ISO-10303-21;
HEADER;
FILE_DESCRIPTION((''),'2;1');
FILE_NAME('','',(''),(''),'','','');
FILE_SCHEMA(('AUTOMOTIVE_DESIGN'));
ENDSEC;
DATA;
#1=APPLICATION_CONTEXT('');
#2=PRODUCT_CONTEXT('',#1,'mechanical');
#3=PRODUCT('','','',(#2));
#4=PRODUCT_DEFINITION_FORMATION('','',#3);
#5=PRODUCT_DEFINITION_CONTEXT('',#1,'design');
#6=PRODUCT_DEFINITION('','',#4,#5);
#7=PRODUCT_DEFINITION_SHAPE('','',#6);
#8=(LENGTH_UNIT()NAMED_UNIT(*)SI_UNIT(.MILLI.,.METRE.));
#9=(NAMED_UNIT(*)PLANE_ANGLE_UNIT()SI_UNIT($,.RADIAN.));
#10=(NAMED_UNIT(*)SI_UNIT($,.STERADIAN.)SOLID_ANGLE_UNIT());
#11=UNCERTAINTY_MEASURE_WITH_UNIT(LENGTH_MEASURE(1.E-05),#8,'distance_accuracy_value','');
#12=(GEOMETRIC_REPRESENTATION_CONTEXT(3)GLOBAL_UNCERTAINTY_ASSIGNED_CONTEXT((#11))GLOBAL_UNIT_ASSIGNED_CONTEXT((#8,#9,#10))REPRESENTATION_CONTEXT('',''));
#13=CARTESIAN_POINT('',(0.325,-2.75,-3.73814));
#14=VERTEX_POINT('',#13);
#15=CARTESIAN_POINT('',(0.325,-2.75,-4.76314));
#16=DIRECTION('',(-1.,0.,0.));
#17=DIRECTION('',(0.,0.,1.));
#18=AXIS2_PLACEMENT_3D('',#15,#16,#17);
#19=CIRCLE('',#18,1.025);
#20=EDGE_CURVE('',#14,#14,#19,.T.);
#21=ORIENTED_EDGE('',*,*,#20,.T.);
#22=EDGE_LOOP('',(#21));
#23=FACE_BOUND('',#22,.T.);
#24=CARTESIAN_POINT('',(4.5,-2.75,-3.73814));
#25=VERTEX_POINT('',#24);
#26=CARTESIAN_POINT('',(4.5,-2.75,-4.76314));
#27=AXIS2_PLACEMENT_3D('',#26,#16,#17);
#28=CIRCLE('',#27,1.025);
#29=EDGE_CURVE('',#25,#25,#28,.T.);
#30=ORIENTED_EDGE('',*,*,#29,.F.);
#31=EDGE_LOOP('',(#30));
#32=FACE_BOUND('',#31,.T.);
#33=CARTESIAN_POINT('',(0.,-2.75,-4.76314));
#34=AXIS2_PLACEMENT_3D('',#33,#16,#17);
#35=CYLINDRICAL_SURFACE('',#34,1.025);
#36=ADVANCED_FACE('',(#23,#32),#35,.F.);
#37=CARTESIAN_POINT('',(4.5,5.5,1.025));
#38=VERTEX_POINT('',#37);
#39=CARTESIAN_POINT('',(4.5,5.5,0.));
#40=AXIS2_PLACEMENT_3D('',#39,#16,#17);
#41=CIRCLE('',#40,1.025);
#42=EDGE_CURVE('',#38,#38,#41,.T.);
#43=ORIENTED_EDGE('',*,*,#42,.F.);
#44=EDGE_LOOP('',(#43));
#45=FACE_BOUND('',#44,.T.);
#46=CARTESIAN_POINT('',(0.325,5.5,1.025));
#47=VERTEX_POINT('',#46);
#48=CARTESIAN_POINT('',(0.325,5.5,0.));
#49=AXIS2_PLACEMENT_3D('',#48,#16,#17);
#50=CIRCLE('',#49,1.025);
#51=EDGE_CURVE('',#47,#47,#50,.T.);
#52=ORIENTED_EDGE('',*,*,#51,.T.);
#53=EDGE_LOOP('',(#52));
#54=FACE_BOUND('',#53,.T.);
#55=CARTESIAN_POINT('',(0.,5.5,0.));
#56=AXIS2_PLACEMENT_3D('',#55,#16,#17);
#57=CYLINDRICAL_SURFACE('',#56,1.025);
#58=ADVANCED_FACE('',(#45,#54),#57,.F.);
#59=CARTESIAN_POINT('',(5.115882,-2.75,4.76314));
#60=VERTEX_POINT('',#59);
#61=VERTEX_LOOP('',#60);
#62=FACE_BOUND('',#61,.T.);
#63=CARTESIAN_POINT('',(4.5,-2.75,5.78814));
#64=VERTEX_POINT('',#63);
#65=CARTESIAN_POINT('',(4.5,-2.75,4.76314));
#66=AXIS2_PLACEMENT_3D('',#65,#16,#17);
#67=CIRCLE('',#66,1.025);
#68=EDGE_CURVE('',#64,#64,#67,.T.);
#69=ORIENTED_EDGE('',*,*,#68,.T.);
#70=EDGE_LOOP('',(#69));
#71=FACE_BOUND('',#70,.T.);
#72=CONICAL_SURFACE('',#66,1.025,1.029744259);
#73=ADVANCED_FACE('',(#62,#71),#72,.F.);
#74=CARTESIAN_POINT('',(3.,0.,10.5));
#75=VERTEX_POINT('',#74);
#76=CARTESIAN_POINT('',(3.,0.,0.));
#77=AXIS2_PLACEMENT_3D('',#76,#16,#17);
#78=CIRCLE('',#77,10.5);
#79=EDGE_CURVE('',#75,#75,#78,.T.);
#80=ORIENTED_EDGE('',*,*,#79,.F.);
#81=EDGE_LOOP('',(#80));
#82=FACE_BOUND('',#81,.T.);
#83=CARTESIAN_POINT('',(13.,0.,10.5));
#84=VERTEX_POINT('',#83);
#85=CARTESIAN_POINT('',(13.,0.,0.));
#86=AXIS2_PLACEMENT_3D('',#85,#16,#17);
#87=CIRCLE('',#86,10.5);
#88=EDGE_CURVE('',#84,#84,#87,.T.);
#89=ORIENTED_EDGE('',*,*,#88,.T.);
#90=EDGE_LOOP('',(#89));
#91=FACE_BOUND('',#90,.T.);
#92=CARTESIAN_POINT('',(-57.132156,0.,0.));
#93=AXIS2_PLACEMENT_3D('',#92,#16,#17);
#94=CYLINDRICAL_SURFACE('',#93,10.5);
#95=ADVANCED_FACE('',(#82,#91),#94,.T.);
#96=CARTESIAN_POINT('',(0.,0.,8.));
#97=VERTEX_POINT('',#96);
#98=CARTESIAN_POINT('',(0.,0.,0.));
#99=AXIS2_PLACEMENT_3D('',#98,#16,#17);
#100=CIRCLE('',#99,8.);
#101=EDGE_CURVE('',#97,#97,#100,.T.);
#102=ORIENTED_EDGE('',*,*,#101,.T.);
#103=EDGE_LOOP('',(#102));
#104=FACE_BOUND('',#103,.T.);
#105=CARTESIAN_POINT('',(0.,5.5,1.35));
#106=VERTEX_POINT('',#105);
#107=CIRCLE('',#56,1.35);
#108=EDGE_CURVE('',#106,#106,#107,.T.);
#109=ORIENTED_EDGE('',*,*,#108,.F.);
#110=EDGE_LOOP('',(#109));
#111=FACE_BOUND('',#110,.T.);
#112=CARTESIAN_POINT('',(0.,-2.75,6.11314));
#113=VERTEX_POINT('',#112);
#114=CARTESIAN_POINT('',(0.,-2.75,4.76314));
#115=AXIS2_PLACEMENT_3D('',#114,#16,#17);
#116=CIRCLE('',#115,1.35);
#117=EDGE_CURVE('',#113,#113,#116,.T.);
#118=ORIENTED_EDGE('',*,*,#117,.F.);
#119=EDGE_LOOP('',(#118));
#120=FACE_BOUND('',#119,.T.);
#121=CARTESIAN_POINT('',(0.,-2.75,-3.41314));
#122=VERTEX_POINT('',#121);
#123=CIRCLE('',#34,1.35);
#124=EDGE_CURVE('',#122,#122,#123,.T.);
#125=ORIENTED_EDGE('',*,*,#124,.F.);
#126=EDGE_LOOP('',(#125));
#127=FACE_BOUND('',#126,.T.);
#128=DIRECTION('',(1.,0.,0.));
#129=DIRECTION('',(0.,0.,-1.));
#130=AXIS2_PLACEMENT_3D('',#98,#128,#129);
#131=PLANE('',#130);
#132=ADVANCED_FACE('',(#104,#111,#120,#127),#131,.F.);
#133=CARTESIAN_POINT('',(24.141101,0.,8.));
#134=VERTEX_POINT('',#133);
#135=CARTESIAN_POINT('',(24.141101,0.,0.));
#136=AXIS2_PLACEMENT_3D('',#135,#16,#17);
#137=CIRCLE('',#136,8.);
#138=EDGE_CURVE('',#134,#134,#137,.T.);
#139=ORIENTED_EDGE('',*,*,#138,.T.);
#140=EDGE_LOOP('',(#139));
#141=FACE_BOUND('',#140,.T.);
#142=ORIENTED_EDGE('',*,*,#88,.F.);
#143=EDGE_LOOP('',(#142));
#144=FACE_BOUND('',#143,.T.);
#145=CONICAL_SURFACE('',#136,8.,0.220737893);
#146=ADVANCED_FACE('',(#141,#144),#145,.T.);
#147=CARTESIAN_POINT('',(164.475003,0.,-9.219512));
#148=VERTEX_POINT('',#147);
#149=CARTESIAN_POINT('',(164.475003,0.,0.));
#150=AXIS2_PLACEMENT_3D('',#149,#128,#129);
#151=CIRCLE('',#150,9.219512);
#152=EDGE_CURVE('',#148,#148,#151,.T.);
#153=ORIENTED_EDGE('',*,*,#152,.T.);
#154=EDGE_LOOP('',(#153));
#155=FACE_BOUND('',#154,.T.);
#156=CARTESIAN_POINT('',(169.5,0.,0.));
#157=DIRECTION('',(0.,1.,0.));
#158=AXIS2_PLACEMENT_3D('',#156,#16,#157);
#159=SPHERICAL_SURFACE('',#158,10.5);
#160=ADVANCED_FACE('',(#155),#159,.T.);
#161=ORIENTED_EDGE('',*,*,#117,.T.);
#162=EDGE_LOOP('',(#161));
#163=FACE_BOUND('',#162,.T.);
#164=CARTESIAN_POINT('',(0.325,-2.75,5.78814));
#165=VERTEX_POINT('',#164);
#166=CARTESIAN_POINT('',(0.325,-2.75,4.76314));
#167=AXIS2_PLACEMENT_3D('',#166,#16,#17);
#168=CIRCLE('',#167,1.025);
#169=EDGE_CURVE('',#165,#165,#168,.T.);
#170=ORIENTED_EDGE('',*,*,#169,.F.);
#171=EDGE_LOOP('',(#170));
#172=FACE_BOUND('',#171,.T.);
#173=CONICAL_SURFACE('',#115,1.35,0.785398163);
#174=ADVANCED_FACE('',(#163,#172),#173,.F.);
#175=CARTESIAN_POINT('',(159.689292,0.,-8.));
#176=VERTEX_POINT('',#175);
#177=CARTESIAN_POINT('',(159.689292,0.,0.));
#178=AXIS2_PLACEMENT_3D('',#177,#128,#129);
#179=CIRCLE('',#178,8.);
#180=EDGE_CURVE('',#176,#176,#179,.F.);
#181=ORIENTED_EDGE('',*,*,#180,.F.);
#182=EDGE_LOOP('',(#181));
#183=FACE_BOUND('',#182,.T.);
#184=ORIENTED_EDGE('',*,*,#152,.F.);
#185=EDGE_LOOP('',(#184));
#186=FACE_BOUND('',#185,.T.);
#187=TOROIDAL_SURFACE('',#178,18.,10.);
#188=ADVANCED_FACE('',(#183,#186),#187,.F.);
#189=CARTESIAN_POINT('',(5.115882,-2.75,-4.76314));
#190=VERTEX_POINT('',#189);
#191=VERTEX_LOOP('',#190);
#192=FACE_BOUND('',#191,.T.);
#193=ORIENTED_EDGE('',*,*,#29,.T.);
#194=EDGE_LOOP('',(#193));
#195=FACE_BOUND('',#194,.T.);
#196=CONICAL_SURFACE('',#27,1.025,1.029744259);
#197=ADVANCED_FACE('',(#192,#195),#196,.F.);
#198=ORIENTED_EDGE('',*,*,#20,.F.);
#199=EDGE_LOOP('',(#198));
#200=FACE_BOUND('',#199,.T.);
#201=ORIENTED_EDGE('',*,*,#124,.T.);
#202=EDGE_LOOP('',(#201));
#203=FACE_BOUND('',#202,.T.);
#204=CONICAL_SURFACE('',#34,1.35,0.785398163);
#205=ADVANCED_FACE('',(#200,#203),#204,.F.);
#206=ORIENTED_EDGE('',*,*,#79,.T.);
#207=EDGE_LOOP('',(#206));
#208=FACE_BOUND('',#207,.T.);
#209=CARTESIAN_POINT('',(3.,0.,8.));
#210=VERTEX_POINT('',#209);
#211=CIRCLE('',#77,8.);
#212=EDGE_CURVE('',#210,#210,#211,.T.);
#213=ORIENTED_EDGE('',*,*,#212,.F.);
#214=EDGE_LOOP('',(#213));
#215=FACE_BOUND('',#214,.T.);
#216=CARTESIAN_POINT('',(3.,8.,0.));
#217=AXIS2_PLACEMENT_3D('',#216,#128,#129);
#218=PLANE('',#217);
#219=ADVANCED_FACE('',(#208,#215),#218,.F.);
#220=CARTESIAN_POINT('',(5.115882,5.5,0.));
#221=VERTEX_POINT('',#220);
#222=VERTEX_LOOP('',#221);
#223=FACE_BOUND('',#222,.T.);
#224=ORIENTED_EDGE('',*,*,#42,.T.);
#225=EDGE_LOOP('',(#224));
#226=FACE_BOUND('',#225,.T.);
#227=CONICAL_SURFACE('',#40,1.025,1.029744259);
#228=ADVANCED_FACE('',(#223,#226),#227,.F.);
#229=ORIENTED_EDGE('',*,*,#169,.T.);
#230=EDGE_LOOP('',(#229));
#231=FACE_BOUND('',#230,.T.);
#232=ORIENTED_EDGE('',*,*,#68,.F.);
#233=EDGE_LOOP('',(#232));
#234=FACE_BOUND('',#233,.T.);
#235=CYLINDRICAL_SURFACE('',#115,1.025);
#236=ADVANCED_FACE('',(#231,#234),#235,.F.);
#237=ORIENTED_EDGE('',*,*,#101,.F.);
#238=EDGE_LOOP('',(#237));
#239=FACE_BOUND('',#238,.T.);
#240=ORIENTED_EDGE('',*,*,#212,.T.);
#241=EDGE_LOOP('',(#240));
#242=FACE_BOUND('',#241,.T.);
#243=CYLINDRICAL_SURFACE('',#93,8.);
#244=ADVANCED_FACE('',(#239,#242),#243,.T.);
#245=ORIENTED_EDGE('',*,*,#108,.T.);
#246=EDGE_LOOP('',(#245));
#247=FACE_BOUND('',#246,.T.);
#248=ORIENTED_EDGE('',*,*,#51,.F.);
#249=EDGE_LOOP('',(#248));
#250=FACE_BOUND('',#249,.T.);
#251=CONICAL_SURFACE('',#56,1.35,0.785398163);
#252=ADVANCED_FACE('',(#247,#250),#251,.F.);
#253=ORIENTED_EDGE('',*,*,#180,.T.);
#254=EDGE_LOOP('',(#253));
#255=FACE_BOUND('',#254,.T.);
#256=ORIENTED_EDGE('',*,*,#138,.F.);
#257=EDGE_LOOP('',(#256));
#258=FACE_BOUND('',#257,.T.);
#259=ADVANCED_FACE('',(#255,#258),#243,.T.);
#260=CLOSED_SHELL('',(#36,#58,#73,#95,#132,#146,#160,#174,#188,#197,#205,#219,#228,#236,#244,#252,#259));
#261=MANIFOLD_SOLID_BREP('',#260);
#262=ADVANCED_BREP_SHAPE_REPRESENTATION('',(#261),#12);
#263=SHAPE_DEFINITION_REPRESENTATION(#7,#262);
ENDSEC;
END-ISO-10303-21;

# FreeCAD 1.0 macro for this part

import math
import FreeCAD as App
import Part
import Sketcher
from FreeCAD import Vector
Q = App.Units.Quantity


def edges_at(feature, points):
    """Names of the edges that pass closest to the given points."""
    edges = feature.Shape.Edges
    near = lambda p: min(range(len(edges)), key=lambda i: edges[i].distToShape(Part.Vertex(*p))[0])
    return sorted({f"Edge{near(p) + 1}" for p in points})

doc = App.newDocument("Part")
body = doc.addObject("PartDesign::Body", "Body")

# Sketch on XY plane
sketch1 = body.newObject("Sketcher::SketchObject", "Sketch")
sketch1.AttachmentSupport = (doc.getObject("XY_Plane"), [""])
sketch1.MapMode = "FlatFace"
sketch1.addGeometry([
    Part.LineSegment(Vector(0, 8, 0), Vector(0, 0, 0)),  # 0
    Part.LineSegment(Vector(0, 0, 0), Vector(180, 0, 0)),  # 1
    Part.ArcOfCircle(Part.Circle(Vector(169.5, 0, 0), Vector(0, 0, 1), 10.5), math.radians(0), math.radians(130.367594)),  # 2
    Part.LineSegment(Vector(162.699265, 8, 0), Vector(24.141101, 8, 0)),  # 3
    Part.LineSegment(Vector(24.141101, 8, 0), Vector(13, 10.5, 0)),  # 4
    Part.LineSegment(Vector(13, 10.5, 0), Vector(3, 10.5, 0)),  # 5
    Part.LineSegment(Vector(3, 10.5, 0), Vector(3, 8, 0)),  # 6
    Part.LineSegment(Vector(3, 8, 0), Vector(0, 8, 0)),  # 7
], False)
sketch1.addConstraint([
    Sketcher.Constraint("Coincident", 0, 2, 1, 1),
    Sketcher.Constraint("Coincident", 1, 2, 2, 1),
    Sketcher.Constraint("Coincident", 2, 2, 3, 1),
    Sketcher.Constraint("Coincident", 3, 2, 4, 1),
    Sketcher.Constraint("Coincident", 4, 2, 5, 1),
    Sketcher.Constraint("Coincident", 5, 2, 6, 1),
    Sketcher.Constraint("Coincident", 6, 2, 7, 1),
    Sketcher.Constraint("Coincident", 7, 2, 0, 1),
    Sketcher.Constraint("Vertical", 0),
    Sketcher.Constraint("Horizontal", 1),
    Sketcher.Constraint("Horizontal", 3),
    Sketcher.Constraint("Horizontal", 5),
    Sketcher.Constraint("Vertical", 6),
    Sketcher.Constraint("Horizontal", 7),
    Sketcher.Constraint("Coincident", 0, 2, -1, 1),
    Sketcher.Constraint("PointOnObject", 2, 3, -1),
    Sketcher.Constraint("Horizontal", 3, 2, 6, 2),
    Sketcher.Constraint("Radius", 2, 10.5),
    Sketcher.Constraint("DistanceX", 1, 1, 1, 2, 180.0),
    Sketcher.Constraint("DistanceX", 5, 2, 5, 1, 10.0),
    Sketcher.Constraint("DistanceX", 7, 2, 7, 1, 3.0),
    Sketcher.Constraint("DistanceY", 0, 2, 0, 1, 8.0),
    Sketcher.Constraint("DistanceY", 6, 2, 6, 1, 2.5),
    Sketcher.Constraint("DistanceX", -1, 1, 3, 2, 24.141101),
])
revolution = body.newObject("PartDesign::Revolution", "Revolution")
revolution.Profile = sketch1
revolution.ReferenceAxis = (sketch1, ["H_Axis"])
revolution.Angle = 360

# Sketch on XZ plane
sketch2 = body.newObject("Sketcher::SketchObject", "Sketch001")
sketch2.AttachmentSupport = (doc.getObject("XZ_Plane"), [""])
sketch2.MapMode = "FlatFace"
sketch2.AttachmentOffset = App.Placement(Vector(0, 0, -5.5), App.Rotation())
sketch2.addGeometry([
    Part.LineSegment(Vector(5.115882, 0, 0), Vector(0, 0, 0)),  # 0
    Part.LineSegment(Vector(0, 0, 0), Vector(0, 1.35, 0)),  # 1
    Part.LineSegment(Vector(0, 1.35, 0), Vector(0.325, 1.025, 0)),  # 2
    Part.LineSegment(Vector(0.325, 1.025, 0), Vector(4.5, 1.025, 0)),  # 3
    Part.LineSegment(Vector(4.5, 1.025, 0), Vector(5.115882, 0, 0)),  # 4
], False)
sketch2.addConstraint([
    Sketcher.Constraint("Coincident", 0, 2, 1, 1),
    Sketcher.Constraint("Coincident", 1, 2, 2, 1),
    Sketcher.Constraint("Coincident", 2, 2, 3, 1),
    Sketcher.Constraint("Coincident", 3, 2, 4, 1),
    Sketcher.Constraint("Coincident", 4, 2, 0, 1),
    Sketcher.Constraint("Horizontal", 0),
    Sketcher.Constraint("Vertical", 1),
    Sketcher.Constraint("Horizontal", 3),
    Sketcher.Constraint("Coincident", 0, 2, -1, 1),
    Sketcher.Constraint("Angle", 2, Q("-45 deg")),
    Sketcher.Constraint("Angle", 4, Q("-59 deg")),
    Sketcher.Constraint("DistanceY", 1, 1, 1, 2, 1.35),
    Sketcher.Constraint("DistanceX", -1, 1, 3, 2, 4.5),
    Sketcher.Constraint("DistanceX", 3, 1, 3, 2, 4.175),
])
groove = body.newObject("PartDesign::Groove", "Groove")
groove.Profile = sketch2
groove.ReferenceAxis = (sketch2, ["H_Axis"])
groove.Angle = 360
doc.recompute()

polarpattern = body.newObject("PartDesign::PolarPattern", "PolarPattern")
polarpattern.Originals = [groove]
polarpattern.Axis = (doc.getObject("X_Axis"), [""])
polarpattern.Angle = 360
polarpattern.Occurrences = 3
body.Tip = polarpattern
doc.recompute()

fillet = body.newObject("PartDesign::Fillet", "Fillet")
fillet.Base = (polarpattern, edges_at(polarpattern, [(162.699, 0, -8)]))
fillet.Radius = 10

doc.recompute()
